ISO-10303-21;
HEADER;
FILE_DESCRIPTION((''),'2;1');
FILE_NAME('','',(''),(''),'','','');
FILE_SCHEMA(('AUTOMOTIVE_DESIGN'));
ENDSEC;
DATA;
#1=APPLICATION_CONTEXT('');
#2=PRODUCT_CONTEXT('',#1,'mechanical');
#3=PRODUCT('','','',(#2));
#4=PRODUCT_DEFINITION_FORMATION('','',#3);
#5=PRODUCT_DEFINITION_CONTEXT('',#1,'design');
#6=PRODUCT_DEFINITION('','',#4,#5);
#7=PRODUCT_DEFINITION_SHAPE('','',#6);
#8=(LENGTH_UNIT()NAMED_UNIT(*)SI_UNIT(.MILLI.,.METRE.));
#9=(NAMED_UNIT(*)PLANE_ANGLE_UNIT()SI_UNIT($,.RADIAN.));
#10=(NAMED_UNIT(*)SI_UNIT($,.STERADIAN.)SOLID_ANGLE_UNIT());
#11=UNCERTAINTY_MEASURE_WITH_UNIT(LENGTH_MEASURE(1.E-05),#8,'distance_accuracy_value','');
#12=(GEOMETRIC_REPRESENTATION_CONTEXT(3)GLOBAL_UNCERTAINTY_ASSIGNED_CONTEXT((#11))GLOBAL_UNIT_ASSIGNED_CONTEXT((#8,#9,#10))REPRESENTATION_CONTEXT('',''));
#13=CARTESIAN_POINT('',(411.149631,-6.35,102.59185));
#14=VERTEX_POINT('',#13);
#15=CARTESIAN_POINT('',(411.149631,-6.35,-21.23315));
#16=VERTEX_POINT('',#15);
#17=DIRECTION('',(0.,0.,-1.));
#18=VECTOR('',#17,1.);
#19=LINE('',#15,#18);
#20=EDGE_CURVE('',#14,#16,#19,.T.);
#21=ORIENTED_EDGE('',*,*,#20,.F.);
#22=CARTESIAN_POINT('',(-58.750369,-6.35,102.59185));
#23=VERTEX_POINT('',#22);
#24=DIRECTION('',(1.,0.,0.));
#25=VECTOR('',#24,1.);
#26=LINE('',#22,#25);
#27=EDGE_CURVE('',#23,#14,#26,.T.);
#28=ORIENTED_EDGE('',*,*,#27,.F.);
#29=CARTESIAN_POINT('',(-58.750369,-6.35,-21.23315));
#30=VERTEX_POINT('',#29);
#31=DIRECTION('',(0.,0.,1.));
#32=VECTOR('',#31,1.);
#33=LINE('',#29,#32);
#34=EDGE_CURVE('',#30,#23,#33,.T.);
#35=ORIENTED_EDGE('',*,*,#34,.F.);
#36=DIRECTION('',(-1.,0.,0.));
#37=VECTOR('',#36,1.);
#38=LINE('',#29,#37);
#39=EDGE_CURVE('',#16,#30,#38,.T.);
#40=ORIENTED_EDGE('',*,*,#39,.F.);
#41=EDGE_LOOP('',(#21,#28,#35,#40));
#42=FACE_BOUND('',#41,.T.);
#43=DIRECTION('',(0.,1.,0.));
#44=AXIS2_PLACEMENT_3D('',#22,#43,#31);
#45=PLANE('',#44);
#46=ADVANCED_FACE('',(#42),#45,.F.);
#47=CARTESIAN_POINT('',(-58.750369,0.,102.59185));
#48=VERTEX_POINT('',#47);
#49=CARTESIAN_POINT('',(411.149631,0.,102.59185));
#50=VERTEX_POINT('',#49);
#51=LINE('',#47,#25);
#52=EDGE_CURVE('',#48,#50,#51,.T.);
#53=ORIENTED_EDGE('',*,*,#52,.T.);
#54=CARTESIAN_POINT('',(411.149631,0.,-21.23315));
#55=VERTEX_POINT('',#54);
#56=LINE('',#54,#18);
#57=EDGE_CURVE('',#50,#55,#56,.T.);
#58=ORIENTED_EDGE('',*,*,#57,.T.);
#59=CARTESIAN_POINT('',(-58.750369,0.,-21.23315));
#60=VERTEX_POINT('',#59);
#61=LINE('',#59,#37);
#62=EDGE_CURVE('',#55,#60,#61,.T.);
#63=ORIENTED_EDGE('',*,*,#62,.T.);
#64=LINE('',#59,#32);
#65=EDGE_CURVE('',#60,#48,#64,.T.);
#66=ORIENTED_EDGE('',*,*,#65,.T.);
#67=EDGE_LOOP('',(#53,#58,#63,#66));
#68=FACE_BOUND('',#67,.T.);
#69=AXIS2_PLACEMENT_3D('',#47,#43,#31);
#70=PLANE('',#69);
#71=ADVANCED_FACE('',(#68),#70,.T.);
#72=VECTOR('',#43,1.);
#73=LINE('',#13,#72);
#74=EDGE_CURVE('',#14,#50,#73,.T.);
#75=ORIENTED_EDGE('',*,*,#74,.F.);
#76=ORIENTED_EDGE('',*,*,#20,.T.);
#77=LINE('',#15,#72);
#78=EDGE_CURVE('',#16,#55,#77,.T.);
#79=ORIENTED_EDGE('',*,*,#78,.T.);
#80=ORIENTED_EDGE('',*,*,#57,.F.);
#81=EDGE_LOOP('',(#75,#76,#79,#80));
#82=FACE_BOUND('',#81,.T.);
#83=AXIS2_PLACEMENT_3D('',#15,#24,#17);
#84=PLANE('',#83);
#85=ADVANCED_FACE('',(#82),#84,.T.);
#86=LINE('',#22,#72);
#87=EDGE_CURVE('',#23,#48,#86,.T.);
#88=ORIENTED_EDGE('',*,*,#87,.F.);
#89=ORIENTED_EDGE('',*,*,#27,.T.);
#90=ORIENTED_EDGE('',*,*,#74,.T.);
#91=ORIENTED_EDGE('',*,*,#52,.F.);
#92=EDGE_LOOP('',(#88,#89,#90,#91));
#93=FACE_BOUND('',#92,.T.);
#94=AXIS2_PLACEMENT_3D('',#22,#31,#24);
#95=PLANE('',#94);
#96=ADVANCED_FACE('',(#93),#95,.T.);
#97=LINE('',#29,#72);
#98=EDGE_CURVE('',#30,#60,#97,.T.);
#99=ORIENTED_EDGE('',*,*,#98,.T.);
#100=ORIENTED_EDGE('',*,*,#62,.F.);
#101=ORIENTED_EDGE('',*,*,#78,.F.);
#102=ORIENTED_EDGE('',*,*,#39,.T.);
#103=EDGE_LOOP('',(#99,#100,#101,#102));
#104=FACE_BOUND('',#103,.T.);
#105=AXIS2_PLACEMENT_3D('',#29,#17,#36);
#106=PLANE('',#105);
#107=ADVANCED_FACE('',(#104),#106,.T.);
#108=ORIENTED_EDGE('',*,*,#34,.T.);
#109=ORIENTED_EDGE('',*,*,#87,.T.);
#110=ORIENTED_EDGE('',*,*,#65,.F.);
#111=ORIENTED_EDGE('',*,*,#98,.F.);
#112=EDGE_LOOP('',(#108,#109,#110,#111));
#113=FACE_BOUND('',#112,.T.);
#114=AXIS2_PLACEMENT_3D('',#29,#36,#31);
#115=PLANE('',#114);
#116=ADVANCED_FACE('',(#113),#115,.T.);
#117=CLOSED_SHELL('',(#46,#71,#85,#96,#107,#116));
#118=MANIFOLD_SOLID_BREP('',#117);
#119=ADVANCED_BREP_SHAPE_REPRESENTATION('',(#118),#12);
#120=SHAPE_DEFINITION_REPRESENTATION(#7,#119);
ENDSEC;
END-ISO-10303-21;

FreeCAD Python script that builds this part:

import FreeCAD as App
import Part
import Sketcher
from FreeCAD import Vector
Q = App.Units.Quantity


def add_polygon(sketch, points):
    """Adds a closed chain of lines whose ends are joined by coincident constraints."""
    first, n = sketch.GeometryCount, len(points)
    for a, b in zip(points, points[1:] + points[:1]):
        sketch.addGeometry(Part.LineSegment(App.Vector(*a, 0), App.Vector(*b, 0)), False)
    for i in range(n):
        sketch.addConstraint(Sketcher.Constraint("Coincident", first + i, 2, first + (i + 1) % n, 1))

doc = App.newDocument("Part")
body = doc.addObject("PartDesign::Body", "Body")

sketch1 = body.newObject("Sketcher::SketchObject", "Sketch")
sketch1.AttachmentSupport = (doc.getObject("XZ_Plane"), [""])
sketch1.MapMode = "FlatFace"
add_polygon(sketch1, [(-59, -21), (-59, 103), (411, 103), (411, -21)])
sketch1.addConstraint(Sketcher.Constraint("Vertical", 0))
sketch1.addConstraint(Sketcher.Constraint("Horizontal", 1))
sketch1.addConstraint(Sketcher.Constraint("Vertical", 2))
sketch1.addConstraint(Sketcher.Constraint("Horizontal", 3))
sketch1.addConstraint(Sketcher.Constraint("DistanceX", 1, 1, 1, 2, Q("18.5 in")))
sketch1.addConstraint(Sketcher.Constraint("DistanceY", 0, 1, 0, 2, Q("4.875 in")))
sketch1.addConstraint(Sketcher.Constraint("DistanceX", 0, 2, -1, 1, 58.750369))
sketch1.addConstraint(Sketcher.Constraint("DistanceY", -1, 1, 0, 2, 102.591851))
pad1 = body.newObject("PartDesign::Pad", "Pad")
pad1.Profile = sketch1
pad1.Length = Q("0.25 in")

doc.recompute()
